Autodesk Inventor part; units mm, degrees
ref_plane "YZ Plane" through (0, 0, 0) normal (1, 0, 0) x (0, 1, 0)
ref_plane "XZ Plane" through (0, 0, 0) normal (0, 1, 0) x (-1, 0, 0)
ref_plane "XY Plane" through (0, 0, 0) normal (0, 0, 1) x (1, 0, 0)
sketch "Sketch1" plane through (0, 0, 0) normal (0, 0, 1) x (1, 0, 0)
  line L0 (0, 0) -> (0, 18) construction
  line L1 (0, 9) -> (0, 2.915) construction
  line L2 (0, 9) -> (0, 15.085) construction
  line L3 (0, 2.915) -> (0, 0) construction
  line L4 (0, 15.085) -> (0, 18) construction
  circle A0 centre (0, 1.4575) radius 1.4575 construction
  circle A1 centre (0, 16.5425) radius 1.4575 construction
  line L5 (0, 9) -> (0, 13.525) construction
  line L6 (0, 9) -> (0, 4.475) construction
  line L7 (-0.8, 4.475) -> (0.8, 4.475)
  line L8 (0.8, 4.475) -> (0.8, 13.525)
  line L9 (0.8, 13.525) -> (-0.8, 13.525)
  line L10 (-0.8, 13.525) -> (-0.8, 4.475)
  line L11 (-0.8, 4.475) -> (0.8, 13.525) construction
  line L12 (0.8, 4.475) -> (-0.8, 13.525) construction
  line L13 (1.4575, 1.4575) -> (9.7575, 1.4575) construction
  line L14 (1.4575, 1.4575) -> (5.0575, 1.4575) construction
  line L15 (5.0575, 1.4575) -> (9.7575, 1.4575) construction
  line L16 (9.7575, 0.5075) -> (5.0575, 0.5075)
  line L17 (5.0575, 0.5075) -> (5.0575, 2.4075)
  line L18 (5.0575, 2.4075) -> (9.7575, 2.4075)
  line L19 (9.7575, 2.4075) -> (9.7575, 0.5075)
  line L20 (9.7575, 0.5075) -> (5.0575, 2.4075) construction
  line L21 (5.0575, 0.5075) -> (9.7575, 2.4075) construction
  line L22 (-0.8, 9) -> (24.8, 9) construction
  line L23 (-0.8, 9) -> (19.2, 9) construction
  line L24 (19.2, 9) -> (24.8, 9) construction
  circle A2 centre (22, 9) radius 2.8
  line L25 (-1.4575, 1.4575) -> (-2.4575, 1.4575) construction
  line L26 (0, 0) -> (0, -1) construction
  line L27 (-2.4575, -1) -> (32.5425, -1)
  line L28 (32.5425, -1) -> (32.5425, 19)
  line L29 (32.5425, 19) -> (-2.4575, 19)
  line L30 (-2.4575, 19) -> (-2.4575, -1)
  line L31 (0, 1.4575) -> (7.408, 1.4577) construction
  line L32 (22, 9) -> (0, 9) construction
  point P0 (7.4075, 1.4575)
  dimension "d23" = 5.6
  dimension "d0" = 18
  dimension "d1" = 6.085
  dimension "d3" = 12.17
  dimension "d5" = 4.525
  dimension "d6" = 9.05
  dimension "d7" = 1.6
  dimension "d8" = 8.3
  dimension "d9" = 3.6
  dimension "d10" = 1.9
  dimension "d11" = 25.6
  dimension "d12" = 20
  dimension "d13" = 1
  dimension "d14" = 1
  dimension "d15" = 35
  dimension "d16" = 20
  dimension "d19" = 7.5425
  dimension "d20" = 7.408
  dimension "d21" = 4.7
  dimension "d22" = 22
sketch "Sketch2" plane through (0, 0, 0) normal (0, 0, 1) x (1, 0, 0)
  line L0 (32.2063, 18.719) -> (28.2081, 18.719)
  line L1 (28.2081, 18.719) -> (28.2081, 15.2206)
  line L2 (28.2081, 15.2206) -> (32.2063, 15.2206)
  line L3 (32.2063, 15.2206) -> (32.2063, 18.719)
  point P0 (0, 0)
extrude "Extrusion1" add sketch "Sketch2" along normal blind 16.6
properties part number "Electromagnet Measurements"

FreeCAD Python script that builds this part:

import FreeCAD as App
import Part
import Sketcher

V = App.Vector

doc = App.newDocument("Part")
body = doc.addObject("PartDesign::Body", "Body")

# Sketch on XY plane
sketch1 = body.newObject("Sketcher::SketchObject", "Sketch")
sketch1.AttachmentSupport = (doc.getObject("XY_Plane"), [""])
sketch1.MapMode = "FlatFace"
sketch1.addGeometry(Part.LineSegment(V(32.2, 15.2, 0), V(32.2, 18.7, 0)), False)
sketch1.addGeometry(Part.LineSegment(V(32.2, 18.7, 0), V(28.2, 18.7, 0)), False)
sketch1.addGeometry(Part.LineSegment(V(28.2, 18.7, 0), V(28.2, 15.2, 0)), False)
sketch1.addGeometry(Part.LineSegment(V(28.2, 15.2, 0), V(32.2, 15.2, 0)), False)
sketch1.addConstraint(Sketcher.Constraint("Coincident", 0, 2, 1, 1))
sketch1.addConstraint(Sketcher.Constraint("Coincident", 1, 2, 2, 1))
sketch1.addConstraint(Sketcher.Constraint("Coincident", 2, 2, 3, 1))
sketch1.addConstraint(Sketcher.Constraint("Coincident", 3, 2, 0, 1))
sketch1.addConstraint(Sketcher.Constraint("Vertical", 0))
sketch1.addConstraint(Sketcher.Constraint("Horizontal", 1))
sketch1.addConstraint(Sketcher.Constraint("Vertical", 2))
sketch1.addConstraint(Sketcher.Constraint("Horizontal", 3))
sketch1.addConstraint(Sketcher.Constraint("DistanceX", 1, 2, 1, 1, 3.9982))
sketch1.addConstraint(Sketcher.Constraint("DistanceY", 0, 1, 0, 2, 3.4984))
sketch1.addConstraint(Sketcher.Constraint("DistanceY", -1, 1, 0, 2, 18.719))
sketch1.addConstraint(Sketcher.Constraint("DistanceX", -1, 1, 1, 2, 28.208))
pad1 = body.newObject("PartDesign::Pad", "Pad")
pad1.Profile = sketch1
pad1.Length = 16.6

doc.recompute()
